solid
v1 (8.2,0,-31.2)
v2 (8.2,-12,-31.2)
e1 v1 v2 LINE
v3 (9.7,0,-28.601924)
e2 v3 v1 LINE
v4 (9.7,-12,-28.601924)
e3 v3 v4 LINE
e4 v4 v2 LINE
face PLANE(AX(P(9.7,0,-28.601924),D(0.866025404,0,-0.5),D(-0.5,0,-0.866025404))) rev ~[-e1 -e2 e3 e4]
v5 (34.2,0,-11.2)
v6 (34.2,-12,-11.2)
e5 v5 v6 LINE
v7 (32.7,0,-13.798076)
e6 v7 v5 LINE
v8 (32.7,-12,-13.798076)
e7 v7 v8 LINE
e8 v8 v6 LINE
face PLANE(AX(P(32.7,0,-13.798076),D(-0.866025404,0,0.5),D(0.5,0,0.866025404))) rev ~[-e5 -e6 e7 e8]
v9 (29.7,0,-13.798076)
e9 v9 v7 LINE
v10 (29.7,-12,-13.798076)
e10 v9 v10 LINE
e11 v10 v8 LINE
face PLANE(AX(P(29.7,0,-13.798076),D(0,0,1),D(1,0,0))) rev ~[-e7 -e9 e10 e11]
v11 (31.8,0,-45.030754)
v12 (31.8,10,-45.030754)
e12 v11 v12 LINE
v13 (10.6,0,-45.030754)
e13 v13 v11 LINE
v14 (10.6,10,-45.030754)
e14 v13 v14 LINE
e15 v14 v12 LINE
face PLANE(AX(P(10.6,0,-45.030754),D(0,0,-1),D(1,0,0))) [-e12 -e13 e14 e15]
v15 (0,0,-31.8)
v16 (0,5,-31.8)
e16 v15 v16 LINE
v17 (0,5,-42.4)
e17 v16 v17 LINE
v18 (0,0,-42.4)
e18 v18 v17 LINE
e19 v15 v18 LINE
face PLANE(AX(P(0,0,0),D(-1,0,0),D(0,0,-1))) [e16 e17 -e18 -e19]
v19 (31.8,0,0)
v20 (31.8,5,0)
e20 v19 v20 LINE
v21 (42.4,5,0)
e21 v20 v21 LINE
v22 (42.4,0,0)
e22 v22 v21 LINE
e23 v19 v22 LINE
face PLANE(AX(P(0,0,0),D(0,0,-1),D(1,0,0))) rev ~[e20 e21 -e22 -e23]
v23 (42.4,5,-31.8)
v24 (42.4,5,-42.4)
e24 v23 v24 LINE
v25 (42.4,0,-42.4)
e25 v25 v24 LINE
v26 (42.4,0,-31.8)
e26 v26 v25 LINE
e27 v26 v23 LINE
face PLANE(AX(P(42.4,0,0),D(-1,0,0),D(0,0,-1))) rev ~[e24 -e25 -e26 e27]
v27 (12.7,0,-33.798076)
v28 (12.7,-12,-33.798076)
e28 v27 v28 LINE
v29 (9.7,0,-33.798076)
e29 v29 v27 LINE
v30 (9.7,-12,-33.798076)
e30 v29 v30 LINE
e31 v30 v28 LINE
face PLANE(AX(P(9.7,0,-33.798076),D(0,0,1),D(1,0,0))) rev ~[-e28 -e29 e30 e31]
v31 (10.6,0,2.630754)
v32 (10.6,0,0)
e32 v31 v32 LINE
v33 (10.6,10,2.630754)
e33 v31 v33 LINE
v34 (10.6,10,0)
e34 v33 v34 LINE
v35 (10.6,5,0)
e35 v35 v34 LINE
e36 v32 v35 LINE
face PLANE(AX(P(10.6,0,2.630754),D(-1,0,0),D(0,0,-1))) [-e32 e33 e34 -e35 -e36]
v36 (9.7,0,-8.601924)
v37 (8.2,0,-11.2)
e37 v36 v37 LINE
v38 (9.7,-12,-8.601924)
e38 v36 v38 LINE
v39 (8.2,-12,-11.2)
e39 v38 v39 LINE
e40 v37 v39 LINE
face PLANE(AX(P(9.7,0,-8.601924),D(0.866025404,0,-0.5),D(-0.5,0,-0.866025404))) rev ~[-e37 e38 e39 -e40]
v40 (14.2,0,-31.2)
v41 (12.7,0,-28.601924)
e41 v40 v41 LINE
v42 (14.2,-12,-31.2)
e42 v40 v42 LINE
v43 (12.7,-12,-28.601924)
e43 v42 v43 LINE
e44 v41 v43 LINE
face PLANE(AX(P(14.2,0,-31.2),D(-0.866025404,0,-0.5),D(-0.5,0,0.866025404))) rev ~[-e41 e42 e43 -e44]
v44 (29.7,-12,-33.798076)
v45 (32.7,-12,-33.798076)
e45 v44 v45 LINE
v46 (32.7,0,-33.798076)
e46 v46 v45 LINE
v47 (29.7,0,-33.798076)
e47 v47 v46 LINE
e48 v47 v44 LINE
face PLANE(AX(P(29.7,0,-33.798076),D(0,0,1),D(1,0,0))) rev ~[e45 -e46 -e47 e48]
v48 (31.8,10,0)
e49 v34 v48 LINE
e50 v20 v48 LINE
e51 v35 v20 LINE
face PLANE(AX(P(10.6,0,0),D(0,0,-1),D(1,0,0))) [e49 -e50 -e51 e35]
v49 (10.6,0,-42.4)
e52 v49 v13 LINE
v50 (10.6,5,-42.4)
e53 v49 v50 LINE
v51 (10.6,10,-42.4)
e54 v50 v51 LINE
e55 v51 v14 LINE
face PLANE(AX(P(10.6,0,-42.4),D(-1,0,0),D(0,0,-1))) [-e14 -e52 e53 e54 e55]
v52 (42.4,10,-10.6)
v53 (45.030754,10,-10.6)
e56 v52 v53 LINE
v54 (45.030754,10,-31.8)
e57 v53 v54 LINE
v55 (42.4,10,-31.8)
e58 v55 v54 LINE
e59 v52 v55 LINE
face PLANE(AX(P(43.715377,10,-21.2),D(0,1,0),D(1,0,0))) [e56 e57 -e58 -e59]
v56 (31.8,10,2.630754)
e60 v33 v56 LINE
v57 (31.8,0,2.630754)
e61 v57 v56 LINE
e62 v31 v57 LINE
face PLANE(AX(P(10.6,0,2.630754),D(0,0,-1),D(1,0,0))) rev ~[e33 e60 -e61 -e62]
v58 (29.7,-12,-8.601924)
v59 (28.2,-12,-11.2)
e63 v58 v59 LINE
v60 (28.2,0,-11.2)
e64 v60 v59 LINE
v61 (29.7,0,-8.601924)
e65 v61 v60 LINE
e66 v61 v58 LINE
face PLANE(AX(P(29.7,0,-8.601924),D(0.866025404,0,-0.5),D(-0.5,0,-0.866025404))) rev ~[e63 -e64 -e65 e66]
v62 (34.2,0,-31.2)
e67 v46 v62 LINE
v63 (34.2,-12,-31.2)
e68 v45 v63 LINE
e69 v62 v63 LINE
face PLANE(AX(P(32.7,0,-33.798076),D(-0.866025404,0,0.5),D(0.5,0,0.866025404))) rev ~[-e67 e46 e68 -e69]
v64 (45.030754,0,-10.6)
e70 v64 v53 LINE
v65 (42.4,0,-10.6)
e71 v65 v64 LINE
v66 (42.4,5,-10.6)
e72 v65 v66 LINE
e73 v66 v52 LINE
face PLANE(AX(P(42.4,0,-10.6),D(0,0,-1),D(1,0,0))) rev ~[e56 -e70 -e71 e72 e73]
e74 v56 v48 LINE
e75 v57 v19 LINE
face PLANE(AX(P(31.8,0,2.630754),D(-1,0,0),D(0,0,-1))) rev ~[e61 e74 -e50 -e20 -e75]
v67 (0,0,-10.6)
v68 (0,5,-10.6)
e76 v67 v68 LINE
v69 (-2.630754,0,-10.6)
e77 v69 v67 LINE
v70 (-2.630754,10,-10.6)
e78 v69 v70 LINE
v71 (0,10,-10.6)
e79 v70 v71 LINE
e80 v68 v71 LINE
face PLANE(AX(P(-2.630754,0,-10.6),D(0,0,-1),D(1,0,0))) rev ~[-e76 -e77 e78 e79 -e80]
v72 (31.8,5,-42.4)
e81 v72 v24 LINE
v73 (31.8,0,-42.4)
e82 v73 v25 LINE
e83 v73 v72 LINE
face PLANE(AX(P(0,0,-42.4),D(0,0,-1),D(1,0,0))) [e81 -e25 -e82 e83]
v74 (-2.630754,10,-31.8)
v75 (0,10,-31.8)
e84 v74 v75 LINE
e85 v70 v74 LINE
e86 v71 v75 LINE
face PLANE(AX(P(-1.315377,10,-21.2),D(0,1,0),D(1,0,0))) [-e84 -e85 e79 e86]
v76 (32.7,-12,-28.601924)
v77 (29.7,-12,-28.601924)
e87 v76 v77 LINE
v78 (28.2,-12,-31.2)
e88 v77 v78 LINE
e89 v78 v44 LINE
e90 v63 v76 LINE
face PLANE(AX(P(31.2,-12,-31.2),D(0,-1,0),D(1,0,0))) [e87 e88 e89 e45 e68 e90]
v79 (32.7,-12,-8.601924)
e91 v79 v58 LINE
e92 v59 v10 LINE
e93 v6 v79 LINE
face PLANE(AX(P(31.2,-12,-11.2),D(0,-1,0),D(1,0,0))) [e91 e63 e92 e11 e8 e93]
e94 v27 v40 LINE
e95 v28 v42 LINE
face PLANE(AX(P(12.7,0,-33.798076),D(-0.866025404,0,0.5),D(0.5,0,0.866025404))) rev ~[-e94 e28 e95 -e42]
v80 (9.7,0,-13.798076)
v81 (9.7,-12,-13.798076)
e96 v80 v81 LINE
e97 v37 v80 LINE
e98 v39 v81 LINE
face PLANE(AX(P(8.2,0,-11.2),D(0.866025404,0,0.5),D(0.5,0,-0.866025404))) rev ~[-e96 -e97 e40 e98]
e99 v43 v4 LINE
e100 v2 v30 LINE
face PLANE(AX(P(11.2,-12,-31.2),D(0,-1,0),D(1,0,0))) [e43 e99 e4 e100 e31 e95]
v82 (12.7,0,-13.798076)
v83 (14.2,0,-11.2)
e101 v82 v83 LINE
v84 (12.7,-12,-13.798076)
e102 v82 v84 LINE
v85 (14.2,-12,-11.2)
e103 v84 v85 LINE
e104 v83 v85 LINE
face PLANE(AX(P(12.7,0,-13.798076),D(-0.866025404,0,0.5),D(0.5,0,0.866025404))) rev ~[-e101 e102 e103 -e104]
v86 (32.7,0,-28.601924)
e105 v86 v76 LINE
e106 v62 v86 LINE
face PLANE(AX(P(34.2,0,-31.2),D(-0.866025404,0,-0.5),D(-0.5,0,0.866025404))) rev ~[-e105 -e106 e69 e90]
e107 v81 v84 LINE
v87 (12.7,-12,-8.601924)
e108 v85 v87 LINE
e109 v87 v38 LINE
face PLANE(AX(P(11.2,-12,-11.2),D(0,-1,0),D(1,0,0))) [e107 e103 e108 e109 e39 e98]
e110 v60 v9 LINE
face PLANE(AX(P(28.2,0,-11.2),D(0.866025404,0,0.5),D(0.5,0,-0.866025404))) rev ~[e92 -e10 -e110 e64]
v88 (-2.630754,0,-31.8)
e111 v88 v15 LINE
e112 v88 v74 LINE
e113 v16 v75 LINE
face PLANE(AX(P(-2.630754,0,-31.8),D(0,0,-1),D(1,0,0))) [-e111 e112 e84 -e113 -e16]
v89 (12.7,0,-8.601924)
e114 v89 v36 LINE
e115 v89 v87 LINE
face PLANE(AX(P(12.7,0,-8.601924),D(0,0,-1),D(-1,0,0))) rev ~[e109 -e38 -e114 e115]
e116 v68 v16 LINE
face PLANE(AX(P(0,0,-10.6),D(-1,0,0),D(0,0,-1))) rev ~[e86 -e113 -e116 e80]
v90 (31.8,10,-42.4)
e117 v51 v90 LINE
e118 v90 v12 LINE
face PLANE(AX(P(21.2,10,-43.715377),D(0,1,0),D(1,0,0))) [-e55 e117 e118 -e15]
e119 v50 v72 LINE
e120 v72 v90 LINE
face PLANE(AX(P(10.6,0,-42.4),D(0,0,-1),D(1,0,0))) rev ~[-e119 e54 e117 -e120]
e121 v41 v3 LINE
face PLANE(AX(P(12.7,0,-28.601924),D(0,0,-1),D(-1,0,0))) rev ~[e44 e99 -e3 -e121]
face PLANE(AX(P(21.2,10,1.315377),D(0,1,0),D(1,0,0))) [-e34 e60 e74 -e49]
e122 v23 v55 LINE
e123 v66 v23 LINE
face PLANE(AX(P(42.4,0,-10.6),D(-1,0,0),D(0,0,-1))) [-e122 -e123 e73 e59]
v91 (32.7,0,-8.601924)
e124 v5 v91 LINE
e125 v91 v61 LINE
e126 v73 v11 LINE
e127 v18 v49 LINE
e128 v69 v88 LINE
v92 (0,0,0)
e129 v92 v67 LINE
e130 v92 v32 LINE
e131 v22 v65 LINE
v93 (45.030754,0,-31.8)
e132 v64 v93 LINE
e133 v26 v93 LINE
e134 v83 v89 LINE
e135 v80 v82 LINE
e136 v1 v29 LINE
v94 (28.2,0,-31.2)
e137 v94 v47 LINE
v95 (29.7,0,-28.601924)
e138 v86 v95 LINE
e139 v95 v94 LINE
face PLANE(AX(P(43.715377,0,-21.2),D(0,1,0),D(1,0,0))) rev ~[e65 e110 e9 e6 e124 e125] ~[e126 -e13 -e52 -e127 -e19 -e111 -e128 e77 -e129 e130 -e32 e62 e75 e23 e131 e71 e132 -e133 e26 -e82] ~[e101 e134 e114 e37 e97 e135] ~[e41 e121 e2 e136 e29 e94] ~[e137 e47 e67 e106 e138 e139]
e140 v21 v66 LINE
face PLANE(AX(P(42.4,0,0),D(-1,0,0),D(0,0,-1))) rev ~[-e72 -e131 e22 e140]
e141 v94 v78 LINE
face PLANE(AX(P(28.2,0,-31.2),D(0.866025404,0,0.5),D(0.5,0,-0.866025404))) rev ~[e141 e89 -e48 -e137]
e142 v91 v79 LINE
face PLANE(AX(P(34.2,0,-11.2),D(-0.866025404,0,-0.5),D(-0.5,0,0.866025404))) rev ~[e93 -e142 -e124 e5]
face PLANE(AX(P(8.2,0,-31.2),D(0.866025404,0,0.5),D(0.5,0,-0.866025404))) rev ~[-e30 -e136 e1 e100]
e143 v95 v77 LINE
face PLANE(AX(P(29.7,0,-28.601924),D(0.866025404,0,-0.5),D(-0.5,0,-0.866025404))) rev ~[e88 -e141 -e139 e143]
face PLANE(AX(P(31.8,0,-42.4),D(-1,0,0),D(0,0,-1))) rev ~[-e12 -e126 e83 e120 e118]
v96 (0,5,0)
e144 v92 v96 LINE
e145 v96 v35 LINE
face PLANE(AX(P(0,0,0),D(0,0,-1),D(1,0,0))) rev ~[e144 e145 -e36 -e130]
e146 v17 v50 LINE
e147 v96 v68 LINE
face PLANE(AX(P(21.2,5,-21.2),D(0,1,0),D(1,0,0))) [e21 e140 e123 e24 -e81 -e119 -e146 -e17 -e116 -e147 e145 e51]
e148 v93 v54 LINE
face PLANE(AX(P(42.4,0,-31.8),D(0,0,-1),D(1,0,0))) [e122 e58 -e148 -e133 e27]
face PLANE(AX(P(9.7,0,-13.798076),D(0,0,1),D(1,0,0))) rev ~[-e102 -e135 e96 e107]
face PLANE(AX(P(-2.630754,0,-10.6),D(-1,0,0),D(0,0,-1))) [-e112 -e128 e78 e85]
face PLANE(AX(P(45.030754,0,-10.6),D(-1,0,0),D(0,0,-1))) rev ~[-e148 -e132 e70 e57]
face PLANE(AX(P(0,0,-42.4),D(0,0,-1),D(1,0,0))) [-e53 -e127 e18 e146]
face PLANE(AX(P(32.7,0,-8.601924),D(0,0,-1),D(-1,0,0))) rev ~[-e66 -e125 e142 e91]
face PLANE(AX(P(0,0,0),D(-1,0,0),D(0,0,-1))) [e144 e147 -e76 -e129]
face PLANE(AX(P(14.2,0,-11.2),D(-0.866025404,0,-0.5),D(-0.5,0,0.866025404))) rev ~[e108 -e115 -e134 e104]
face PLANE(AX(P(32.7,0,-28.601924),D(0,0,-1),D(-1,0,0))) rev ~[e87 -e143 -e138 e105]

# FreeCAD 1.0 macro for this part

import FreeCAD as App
import Part
import Sketcher
Q = App.Units.Quantity


def add_polygon(sketch, points):
    """Adds a closed chain of lines whose ends are joined by coincident constraints."""
    first, n = sketch.GeometryCount, len(points)
    for a, b in zip(points, points[1:] + points[:1]):
        sketch.addGeometry(Part.LineSegment(App.Vector(*a, 0), App.Vector(*b, 0)), False)
    for i in range(n):
        sketch.addConstraint(Sketcher.Constraint("Coincident", first + i, 2, first + (i + 1) % n, 1))

doc = App.newDocument("Part")
body = doc.addObject("PartDesign::Body", "Body")

sketch1 = body.newObject("Sketcher::SketchObject", "Sketch")
sketch1.AttachmentSupport = (doc.getObject("XZ_Plane"), [""])
sketch1.MapMode = "FlatFace"
add_polygon(sketch1, [(0, -42), (0, 0), (42, 0), (42, -42)])
sketch1.addConstraint(Sketcher.Constraint("Vertical", 0))
sketch1.addConstraint(Sketcher.Constraint("Horizontal", 1))
sketch1.addConstraint(Sketcher.Constraint("Vertical", 2))
sketch1.addConstraint(Sketcher.Constraint("Horizontal", 3))
sketch1.addConstraint(Sketcher.Constraint("Coincident", 0, 2, -1, 1))
sketch1.addConstraint(Sketcher.Constraint("Equal", 3, 0))
sketch1.addConstraint(Sketcher.Constraint("DistanceX", 1, 1, 1, 2, Q("42.4 mm")))
pad1 = body.newObject("PartDesign::Pad", "Pad")
pad1.Profile = sketch1
pad1.Length = 5
pad1.Reversed = True

sketch2 = body.newObject("Sketcher::SketchObject", "Sketch001")
sketch2.AttachmentSupport = (doc.getObject("XZ_Plane"), [""])
sketch2.MapMode = "FlatFace"
sketch2.AttachmentOffset = App.Placement(App.Vector(0, 0, -5), App.Rotation())
add_polygon(sketch2, [(42.4, -31.8), (42.4, -10.6), (45, -10.6), (45, -31.8)])
add_polygon(sketch2, [(10.6, -45), (10.6, -42.4), (31.8, -42.4), (31.8, -45)])
add_polygon(sketch2, [(10.6, 0), (10.6, 2.6), (31.8, 2.6), (31.8, 0)])
add_polygon(sketch2, [(-2.6, -31.8), (-2.6, -10.6), (0, -10.6), (0, -31.8)])
sketch2.addConstraint(Sketcher.Constraint("Vertical", 0))
sketch2.addConstraint(Sketcher.Constraint("Horizontal", 1))
sketch2.addConstraint(Sketcher.Constraint("Vertical", 2))
sketch2.addConstraint(Sketcher.Constraint("Horizontal", 3))
sketch2.addConstraint(Sketcher.Constraint("Vertical", 4))
sketch2.addConstraint(Sketcher.Constraint("Horizontal", 5))
sketch2.addConstraint(Sketcher.Constraint("Vertical", 6))
sketch2.addConstraint(Sketcher.Constraint("Horizontal", 7))
sketch2.addConstraint(Sketcher.Constraint("Vertical", 8))
sketch2.addConstraint(Sketcher.Constraint("Horizontal", 9))
sketch2.addConstraint(Sketcher.Constraint("Vertical", 10))
sketch2.addConstraint(Sketcher.Constraint("Horizontal", 11))
sketch2.addConstraint(Sketcher.Constraint("Vertical", 12))
sketch2.addConstraint(Sketcher.Constraint("Horizontal", 13))
sketch2.addConstraint(Sketcher.Constraint("Vertical", 14))
sketch2.addConstraint(Sketcher.Constraint("Horizontal", 15))
sketch2.addConstraint(Sketcher.Constraint("PointOnObject", 10, 2, -1))
sketch2.addConstraint(Sketcher.Constraint("PointOnObject", 13, 2, -2))
sketch2.addConstraint(Sketcher.Constraint("Horizontal", 1, 2, 12, 2))
sketch2.addConstraint(Sketcher.Constraint("Horizontal", 3, 2, 14, 2))
sketch2.addConstraint(Sketcher.Constraint("Vertical", 7, 2, 8, 2))
sketch2.addConstraint(Sketcher.Constraint("Vertical", 6, 2, 9, 2))
sketch2.addConstraint(Sketcher.Constraint("Equal", 3, 13))
sketch2.addConstraint(Sketcher.Constraint("Equal", 11, 0))
sketch2.addConstraint(Sketcher.Constraint("Equal", 15, 4))
sketch2.addConstraint(Sketcher.Constraint("Equal", 6, 8))
sketch2.addConstraint(Sketcher.Constraint("DistanceX", 5, 1, 5, 2, Q("21.2 mm")))
sketch2.addConstraint(Sketcher.Constraint("DistanceX", -1, 1, 0, 2, Q("42.4 mm")))
sketch2.addConstraint(Sketcher.Constraint("DistanceY", 0, 2, -1, 1, Q("10.6 mm")))
sketch2.addConstraint(Sketcher.Constraint("DistanceX", -1, 1, 4, 2, Q("10.6 mm")))
sketch2.addConstraint(Sketcher.Constraint("DistanceY", 4, 2, -1, 1, Q("42.4 mm")))
sketch2.addConstraint(Sketcher.Constraint("DistanceX", 1, 1, 1, 2, Q("2.630754 mm")))
pad2 = body.newObject("PartDesign::Pad", "Pad001")
pad2.Profile = sketch2
pad2.Type = "TwoLengths"
pad2.Length = 5
pad2.Length2 = 5
pad2.Reversed = True

sketch3 = body.newObject("Sketcher::SketchObject", "Sketch002")
sketch3.AttachmentSupport = (doc.getObject("XZ_Plane"), [""])
sketch3.MapMode = "FlatFace"
add_polygon(sketch3, [(32.7, -8.6), (29.7, -8.6), (28.2, -11.2), (29.7, -13.8), (32.7, -13.8), (34.2, -11.2)])
add_polygon(sketch3, [(9.7, -8.6), (8.2, -11.2), (9.7, -13.8), (12.7, -13.8), (14.2, -11.2), (12.7, -8.6)])
add_polygon(sketch3, [(32.7, -28.6), (29.7, -28.6), (28.2, -31.2), (29.7, -33.8), (32.7, -33.8), (34.2, -31.2)])
add_polygon(sketch3, [(12.7, -28.6), (9.7, -28.6), (8.2, -31.2), (9.7, -33.8), (12.7, -33.8), (14.2, -31.2)])
sketch3.addConstraint(Sketcher.Constraint("Horizontal", 0))
sketch3.addConstraint(Sketcher.Constraint("Horizontal", 3))
sketch3.addConstraint(Sketcher.Constraint("Horizontal", 8))
sketch3.addConstraint(Sketcher.Constraint("Horizontal", 11))
sketch3.addConstraint(Sketcher.Constraint("Horizontal", 12))
sketch3.addConstraint(Sketcher.Constraint("Horizontal", 15))
sketch3.addConstraint(Sketcher.Constraint("Horizontal", 18))
sketch3.addConstraint(Sketcher.Constraint("Horizontal", 21))
sketch3.addConstraint(Sketcher.Constraint("Parallel", 1, 4))
sketch3.addConstraint(Sketcher.Constraint("Parallel", 2, 5))
sketch3.addConstraint(Sketcher.Constraint("Parallel", 4, 6))
sketch3.addConstraint(Sketcher.Constraint("Parallel", 5, 7))
sketch3.addConstraint(Sketcher.Constraint("Parallel", 6, 9))
sketch3.addConstraint(Sketcher.Constraint("Parallel", 7, 10))
sketch3.addConstraint(Sketcher.Constraint("Parallel", 9, 13))
sketch3.addConstraint(Sketcher.Constraint("Parallel", 10, 14))
sketch3.addConstraint(Sketcher.Constraint("Parallel", 13, 16))
sketch3.addConstraint(Sketcher.Constraint("Parallel", 14, 17))
sketch3.addConstraint(Sketcher.Constraint("Parallel", 16, 19))
sketch3.addConstraint(Sketcher.Constraint("Parallel", 17, 20))
sketch3.addConstraint(Sketcher.Constraint("Parallel", 19, 22))
sketch3.addConstraint(Sketcher.Constraint("Parallel", 20, 23))
sketch3.addConstraint(Sketcher.Constraint("Horizontal", 1, 2, 4, 2))
sketch3.addConstraint(Sketcher.Constraint("Horizontal", 4, 2, 6, 2))
sketch3.addConstraint(Sketcher.Constraint("Horizontal", 3, 2, 7, 2))
sketch3.addConstraint(Sketcher.Constraint("Horizontal", 6, 2, 9, 2))
sketch3.addConstraint(Sketcher.Constraint("Horizontal", 5, 2, 10, 2))
sketch3.addConstraint(Sketcher.Constraint("Horizontal", 13, 2, 16, 2))
sketch3.addConstraint(Sketcher.Constraint("Horizontal", 17, 2, 18, 2))
sketch3.addConstraint(Sketcher.Constraint("Horizontal", 16, 2, 19, 2))
sketch3.addConstraint(Sketcher.Constraint("Horizontal", 15, 2, 20, 2))
sketch3.addConstraint(Sketcher.Constraint("Horizontal", 19, 2, 22, 2))
sketch3.addConstraint(Sketcher.Constraint("Vertical", 0, 2, 2, 2))
sketch3.addConstraint(Sketcher.Constraint("Vertical", 3, 2, 5, 2))
sketch3.addConstraint(Sketcher.Constraint("Vertical", 2, 2, 12, 2))
sketch3.addConstraint(Sketcher.Constraint("Vertical", 1, 2, 13, 2))
sketch3.addConstraint(Sketcher.Constraint("Vertical", 12, 2, 14, 2))
sketch3.addConstraint(Sketcher.Constraint("Vertical", 5, 2, 15, 2))
sketch3.addConstraint(Sketcher.Constraint("Vertical", 11, 2, 18, 2))
sketch3.addConstraint(Sketcher.Constraint("Vertical", 10, 2, 21, 2))
sketch3.addConstraint(Sketcher.Constraint("Equal", 3, 8))
sketch3.addConstraint(Sketcher.Constraint("DistanceX", 0, 2, 0, 1, Q("3 mm")))
sketch3.addConstraint(Sketcher.Constraint("Angle", 1, Q("-120 deg")))
sketch3.addConstraint(Sketcher.Constraint("Distance", 1, Q("3 mm")))
sketch3.addConstraint(Sketcher.Constraint("DistanceX", 6, 2, 1, 2, Q("20 mm")))
sketch3.addConstraint(Sketcher.Constraint("DistanceY", 12, 2, 0, 2, Q("20 mm")))
sketch3.addConstraint(Sketcher.Constraint("DistanceX", -1, 1, 0, 2, Q("29.7 mm")))
sketch3.addConstraint(Sketcher.Constraint("DistanceY", 1, 2, -1, 1, Q("11.2 mm")))
pad3 = body.newObject("PartDesign::Pad", "Pad002")
pad3.Profile = sketch3
pad3.Length = 12

doc.recompute()
